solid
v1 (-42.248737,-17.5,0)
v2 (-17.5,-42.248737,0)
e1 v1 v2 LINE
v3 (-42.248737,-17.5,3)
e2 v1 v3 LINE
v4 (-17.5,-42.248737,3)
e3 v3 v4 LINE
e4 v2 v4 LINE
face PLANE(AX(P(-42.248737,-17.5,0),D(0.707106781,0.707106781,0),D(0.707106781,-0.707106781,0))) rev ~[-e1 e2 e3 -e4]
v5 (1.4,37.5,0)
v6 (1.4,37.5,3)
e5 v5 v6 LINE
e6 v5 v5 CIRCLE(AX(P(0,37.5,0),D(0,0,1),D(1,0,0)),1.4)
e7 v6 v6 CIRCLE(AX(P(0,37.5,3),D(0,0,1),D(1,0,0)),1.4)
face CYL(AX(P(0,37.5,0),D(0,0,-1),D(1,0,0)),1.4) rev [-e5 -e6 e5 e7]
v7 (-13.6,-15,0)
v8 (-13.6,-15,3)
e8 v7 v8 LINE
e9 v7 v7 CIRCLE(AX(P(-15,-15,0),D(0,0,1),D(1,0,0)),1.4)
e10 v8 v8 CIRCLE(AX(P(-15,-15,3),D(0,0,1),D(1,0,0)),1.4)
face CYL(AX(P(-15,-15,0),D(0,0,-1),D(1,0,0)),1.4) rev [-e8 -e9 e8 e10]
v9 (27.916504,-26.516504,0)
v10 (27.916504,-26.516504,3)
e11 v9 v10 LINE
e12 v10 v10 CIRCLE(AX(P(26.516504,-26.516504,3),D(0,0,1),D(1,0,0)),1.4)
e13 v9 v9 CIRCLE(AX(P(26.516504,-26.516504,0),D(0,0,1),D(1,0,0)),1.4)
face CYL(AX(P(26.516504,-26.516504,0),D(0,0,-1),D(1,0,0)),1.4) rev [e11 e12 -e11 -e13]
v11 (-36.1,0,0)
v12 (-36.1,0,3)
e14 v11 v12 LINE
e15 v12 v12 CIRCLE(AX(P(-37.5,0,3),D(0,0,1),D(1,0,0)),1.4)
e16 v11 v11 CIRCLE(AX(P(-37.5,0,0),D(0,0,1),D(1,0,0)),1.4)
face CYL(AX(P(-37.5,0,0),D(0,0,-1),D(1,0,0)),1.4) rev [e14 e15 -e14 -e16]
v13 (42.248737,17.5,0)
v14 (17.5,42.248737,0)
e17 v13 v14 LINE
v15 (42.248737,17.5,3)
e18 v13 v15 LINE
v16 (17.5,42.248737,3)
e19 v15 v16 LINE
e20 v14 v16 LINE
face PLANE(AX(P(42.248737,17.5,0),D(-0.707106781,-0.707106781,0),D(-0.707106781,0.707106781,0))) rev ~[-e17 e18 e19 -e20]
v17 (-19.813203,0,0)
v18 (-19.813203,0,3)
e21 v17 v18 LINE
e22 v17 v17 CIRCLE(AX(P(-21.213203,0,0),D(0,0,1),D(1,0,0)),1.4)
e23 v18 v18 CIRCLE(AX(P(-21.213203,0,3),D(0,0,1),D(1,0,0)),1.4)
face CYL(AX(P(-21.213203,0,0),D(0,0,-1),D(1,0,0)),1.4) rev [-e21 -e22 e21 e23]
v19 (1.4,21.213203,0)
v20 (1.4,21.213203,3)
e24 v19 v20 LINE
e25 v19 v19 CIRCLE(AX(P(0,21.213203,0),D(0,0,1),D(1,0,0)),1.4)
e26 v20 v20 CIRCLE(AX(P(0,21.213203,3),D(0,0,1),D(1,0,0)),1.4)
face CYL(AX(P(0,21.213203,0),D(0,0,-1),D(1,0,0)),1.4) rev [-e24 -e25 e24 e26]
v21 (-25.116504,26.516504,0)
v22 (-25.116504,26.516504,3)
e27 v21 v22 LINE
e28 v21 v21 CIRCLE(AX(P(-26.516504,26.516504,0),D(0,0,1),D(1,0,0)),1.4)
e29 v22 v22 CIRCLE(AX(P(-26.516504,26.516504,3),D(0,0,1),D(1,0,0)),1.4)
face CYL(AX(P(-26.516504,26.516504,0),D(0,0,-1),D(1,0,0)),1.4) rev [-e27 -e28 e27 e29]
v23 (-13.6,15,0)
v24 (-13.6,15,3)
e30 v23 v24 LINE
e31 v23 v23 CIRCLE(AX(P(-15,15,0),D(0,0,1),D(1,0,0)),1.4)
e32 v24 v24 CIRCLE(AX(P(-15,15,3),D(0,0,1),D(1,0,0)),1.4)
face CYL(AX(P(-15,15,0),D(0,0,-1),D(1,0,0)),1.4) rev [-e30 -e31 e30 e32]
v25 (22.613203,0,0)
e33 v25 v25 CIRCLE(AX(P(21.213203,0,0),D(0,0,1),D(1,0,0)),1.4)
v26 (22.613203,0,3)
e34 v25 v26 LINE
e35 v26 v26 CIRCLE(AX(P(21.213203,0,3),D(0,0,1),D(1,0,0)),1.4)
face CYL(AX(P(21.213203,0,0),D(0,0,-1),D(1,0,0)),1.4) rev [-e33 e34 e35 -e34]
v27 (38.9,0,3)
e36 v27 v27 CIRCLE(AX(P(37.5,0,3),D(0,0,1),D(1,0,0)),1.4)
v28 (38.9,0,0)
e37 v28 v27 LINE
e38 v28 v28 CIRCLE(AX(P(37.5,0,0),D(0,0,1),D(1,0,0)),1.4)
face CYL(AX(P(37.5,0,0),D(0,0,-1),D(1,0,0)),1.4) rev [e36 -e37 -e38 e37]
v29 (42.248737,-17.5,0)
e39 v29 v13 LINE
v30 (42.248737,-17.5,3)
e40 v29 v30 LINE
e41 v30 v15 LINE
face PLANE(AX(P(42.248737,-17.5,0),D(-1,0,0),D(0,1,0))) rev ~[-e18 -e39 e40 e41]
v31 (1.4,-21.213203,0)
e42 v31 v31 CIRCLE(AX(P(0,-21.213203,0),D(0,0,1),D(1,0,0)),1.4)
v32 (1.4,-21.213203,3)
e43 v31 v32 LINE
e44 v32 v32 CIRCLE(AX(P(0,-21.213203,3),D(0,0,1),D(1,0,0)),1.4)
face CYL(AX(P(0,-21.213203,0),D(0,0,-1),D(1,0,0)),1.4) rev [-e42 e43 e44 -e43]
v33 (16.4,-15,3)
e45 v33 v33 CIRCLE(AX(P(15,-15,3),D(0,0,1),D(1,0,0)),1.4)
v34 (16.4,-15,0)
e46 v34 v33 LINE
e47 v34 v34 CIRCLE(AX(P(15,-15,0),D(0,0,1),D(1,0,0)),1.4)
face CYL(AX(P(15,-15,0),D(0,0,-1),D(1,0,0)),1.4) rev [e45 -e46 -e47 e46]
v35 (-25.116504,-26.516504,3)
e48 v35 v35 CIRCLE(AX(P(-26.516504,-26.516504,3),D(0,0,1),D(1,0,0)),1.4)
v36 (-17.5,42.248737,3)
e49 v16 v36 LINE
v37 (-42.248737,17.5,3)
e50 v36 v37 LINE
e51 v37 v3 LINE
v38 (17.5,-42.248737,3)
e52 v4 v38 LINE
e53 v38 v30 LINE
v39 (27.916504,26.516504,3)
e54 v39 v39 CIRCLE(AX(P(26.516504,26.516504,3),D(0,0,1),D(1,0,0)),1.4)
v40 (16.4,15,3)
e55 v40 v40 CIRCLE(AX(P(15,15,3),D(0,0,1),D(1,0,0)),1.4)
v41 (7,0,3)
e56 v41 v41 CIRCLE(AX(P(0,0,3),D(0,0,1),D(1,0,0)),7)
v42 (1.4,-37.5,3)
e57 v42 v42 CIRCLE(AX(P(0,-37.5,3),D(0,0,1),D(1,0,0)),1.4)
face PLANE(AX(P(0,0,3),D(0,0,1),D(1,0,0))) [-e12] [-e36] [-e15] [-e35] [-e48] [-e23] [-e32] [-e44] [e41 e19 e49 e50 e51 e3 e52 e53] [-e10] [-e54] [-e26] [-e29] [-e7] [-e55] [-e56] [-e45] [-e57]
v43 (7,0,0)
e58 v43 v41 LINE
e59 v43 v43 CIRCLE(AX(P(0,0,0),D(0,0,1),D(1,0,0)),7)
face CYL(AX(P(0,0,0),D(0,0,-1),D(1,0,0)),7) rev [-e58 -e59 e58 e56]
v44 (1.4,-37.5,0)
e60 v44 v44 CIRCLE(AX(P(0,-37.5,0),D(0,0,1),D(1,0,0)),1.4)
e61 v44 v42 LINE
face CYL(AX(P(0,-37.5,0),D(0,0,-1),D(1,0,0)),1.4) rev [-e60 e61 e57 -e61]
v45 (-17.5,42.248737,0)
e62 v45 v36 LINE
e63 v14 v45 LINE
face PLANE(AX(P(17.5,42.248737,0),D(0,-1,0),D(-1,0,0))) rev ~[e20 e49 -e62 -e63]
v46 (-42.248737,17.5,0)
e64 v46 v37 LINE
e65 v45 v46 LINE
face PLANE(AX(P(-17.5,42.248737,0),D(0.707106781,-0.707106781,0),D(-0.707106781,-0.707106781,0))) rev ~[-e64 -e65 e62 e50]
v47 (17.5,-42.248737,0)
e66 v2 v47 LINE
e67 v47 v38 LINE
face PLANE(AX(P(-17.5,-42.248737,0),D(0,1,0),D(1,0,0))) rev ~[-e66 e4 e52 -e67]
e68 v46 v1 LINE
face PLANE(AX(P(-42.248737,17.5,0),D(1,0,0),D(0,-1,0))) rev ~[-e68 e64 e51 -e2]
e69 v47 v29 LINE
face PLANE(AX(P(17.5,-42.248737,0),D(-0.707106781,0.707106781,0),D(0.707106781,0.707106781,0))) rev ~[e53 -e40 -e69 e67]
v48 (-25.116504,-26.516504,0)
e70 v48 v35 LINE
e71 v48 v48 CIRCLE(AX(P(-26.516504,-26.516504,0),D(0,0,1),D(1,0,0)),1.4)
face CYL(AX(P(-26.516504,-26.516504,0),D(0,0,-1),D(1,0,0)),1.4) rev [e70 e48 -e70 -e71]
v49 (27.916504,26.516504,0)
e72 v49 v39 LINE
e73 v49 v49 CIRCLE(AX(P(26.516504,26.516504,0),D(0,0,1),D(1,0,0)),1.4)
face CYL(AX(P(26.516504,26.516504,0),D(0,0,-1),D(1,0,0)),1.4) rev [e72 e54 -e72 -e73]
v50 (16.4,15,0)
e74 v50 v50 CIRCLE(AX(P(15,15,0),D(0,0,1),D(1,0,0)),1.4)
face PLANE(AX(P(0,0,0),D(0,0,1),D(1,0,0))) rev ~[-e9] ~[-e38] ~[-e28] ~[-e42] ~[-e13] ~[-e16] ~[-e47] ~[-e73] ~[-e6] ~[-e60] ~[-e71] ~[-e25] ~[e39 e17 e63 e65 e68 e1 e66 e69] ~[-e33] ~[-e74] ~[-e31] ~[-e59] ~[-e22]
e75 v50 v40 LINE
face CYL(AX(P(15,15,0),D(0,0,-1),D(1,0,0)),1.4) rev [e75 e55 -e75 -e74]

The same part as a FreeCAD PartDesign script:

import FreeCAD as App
import Part
import Sketcher
Q = App.Units.Quantity

doc = App.newDocument("Part")
body = doc.addObject("PartDesign::Body", "Body")

# Sketch on XY plane
sketch1 = doc.addObject("Sketcher::SketchObject", "Sketch")
body.addObject(sketch1)
sketch1.AttachmentSupport = (doc.XY_Plane, [""])
sketch1.MapMode = "FlatFace"
sketch1.addGeometry(Part.LineSegment(App.Vector(17.5, 42.2, 0), App.Vector(-17.5, 42.2, 0)), False)
sketch1.addGeometry(Part.LineSegment(App.Vector(-17.5, 42.2, 0), App.Vector(-42.2, 17.5, 0)), False)
sketch1.addGeometry(Part.LineSegment(App.Vector(-42.2, 17.5, 0), App.Vector(-42.2, -17.5, 0)), False)
sketch1.addGeometry(Part.LineSegment(App.Vector(-42.2, -17.5, 0), App.Vector(-17.5, -42.2, 0)), False)
sketch1.addGeometry(Part.LineSegment(App.Vector(-17.5, -42.2, 0), App.Vector(17.5, -42.2, 0)), False)
sketch1.addGeometry(Part.LineSegment(App.Vector(17.5, -42.2, 0), App.Vector(42.2, -17.5, 0)), False)
sketch1.addGeometry(Part.LineSegment(App.Vector(42.2, -17.5, 0), App.Vector(42.2, 17.5, 0)), False)
sketch1.addGeometry(Part.LineSegment(App.Vector(42.2, 17.5, 0), App.Vector(17.5, 42.2, 0)), False)
sketch1.addGeometry(Part.Circle(App.Vector(-26.5, -26.5, 0), App.Vector(0, 0, 1), 1.4), False)
sketch1.addGeometry(Part.Circle(App.Vector(-15, -15, 0), App.Vector(0, 0, 1), 1.4), False)
sketch1.addGeometry(Part.Circle(App.Vector(0, -37.5, 0), App.Vector(0, 0, 1), 1.4), False)
sketch1.addGeometry(Part.Circle(App.Vector(0, -21.2, 0), App.Vector(0, 0, 1), 1.4), False)
sketch1.addGeometry(Part.Circle(App.Vector(26.5, -26.5, 0), App.Vector(0, 0, 1), 1.4), False)
sketch1.addGeometry(Part.Circle(App.Vector(15, -15, 0), App.Vector(0, 0, 1), 1.4), False)
sketch1.addGeometry(Part.Circle(App.Vector(-37.5, 0, 0), App.Vector(0, 0, 1), 1.4), False)
sketch1.addGeometry(Part.Circle(App.Vector(-21.2, 0, 0), App.Vector(0, 0, 1), 1.4), False)
sketch1.addGeometry(Part.Circle(App.Vector(-15, 15, 0), App.Vector(0, 0, 1), 1.4), False)
sketch1.addGeometry(Part.Circle(App.Vector(-26.5, 26.5, 0), App.Vector(0, 0, 1), 1.4), False)
sketch1.addGeometry(Part.Circle(App.Vector(0, 0, 0), App.Vector(0, 0, 1), 7), False)
sketch1.addGeometry(Part.Circle(App.Vector(15, 15, 0), App.Vector(0, 0, 1), 1.4), False)
sketch1.addGeometry(Part.Circle(App.Vector(21.2, 0, 0), App.Vector(0, 0, 1), 1.4), False)
sketch1.addGeometry(Part.Circle(App.Vector(37.5, 0, 0), App.Vector(0, 0, 1), 1.4), False)
sketch1.addGeometry(Part.Circle(App.Vector(0, 21.2, 0), App.Vector(0, 0, 1), 1.4), False)
sketch1.addGeometry(Part.Circle(App.Vector(0, 37.5, 0), App.Vector(0, 0, 1), 1.4), False)
sketch1.addGeometry(Part.Circle(App.Vector(26.5, 26.5, 0), App.Vector(0, 0, 1), 1.4), False)
sketch1.addConstraint(Sketcher.Constraint("Coincident", 0, 2, 1, 1))
sketch1.addConstraint(Sketcher.Constraint("Coincident", 1, 2, 2, 1))
sketch1.addConstraint(Sketcher.Constraint("Coincident", 2, 2, 3, 1))
sketch1.addConstraint(Sketcher.Constraint("Coincident", 3, 2, 4, 1))
sketch1.addConstraint(Sketcher.Constraint("Coincident", 4, 2, 5, 1))
sketch1.addConstraint(Sketcher.Constraint("Coincident", 5, 2, 6, 1))
sketch1.addConstraint(Sketcher.Constraint("Coincident", 6, 2, 7, 1))
sketch1.addConstraint(Sketcher.Constraint("Coincident", 7, 2, 0, 1))
sketch1.addConstraint(Sketcher.Constraint("Horizontal", 0))
sketch1.addConstraint(Sketcher.Constraint("Vertical", 2))
sketch1.addConstraint(Sketcher.Constraint("Horizontal", 4))
sketch1.addConstraint(Sketcher.Constraint("Vertical", 6))
sketch1.addConstraint(Sketcher.Constraint("Coincident", 18, 3, -1, 1))
sketch1.addConstraint(Sketcher.Constraint("Equal", 8, 9))
sketch1.addConstraint(Sketcher.Constraint("Equal", 9, 10))
sketch1.addConstraint(Sketcher.Constraint("Equal", 10, 11))
sketch1.addConstraint(Sketcher.Constraint("Equal", 11, 12))
sketch1.addConstraint(Sketcher.Constraint("Equal", 12, 13))
sketch1.addConstraint(Sketcher.Constraint("Equal", 13, 14))
sketch1.addConstraint(Sketcher.Constraint("Equal", 14, 15))
sketch1.addConstraint(Sketcher.Constraint("Equal", 15, 16))
sketch1.addConstraint(Sketcher.Constraint("Equal", 16, 17))
sketch1.addConstraint(Sketcher.Constraint("Equal", 17, 19))
sketch1.addConstraint(Sketcher.Constraint("Equal", 19, 20))
sketch1.addConstraint(Sketcher.Constraint("Equal", 20, 21))
sketch1.addConstraint(Sketcher.Constraint("Equal", 21, 22))
sketch1.addConstraint(Sketcher.Constraint("Equal", 22, 23))
sketch1.addConstraint(Sketcher.Constraint("Equal", 23, 24))
sketch1.addConstraint(Sketcher.Constraint("Symmetric", 13, 3, 16, 3, -1, 1))
sketch1.addConstraint(Sketcher.Constraint("Symmetric", 12, 3, 17, 3, -1, 1))
sketch1.addConstraint(Sketcher.Constraint("Symmetric", 9, 3, 19, 3, -1, 1))
sketch1.addConstraint(Sketcher.Constraint("Symmetric", 15, 3, 20, 3, -1, 1))
sketch1.addConstraint(Sketcher.Constraint("Symmetric", 14, 3, 21, 3, -1, 1))
sketch1.addConstraint(Sketcher.Constraint("Symmetric", 11, 3, 22, 3, -1, 1))
sketch1.addConstraint(Sketcher.Constraint("Symmetric", 10, 3, 23, 3, -1, 1))
sketch1.addConstraint(Sketcher.Constraint("Symmetric", 8, 3, 24, 3, -1, 1))
sketch1.addConstraint(Sketcher.Constraint("Symmetric", 0, 2, 4, 2, -1, 1))
sketch1.addConstraint(Sketcher.Constraint("Symmetric", 1, 2, 5, 2, -1, 1))
sketch1.addConstraint(Sketcher.Constraint("Symmetric", 8, 3, 12, 3, -2))
sketch1.addConstraint(Sketcher.Constraint("Symmetric", 9, 3, 13, 3, -2))
sketch1.addConstraint(Sketcher.Constraint("PointOnObject", 10, 3, -2))
sketch1.addConstraint(Sketcher.Constraint("PointOnObject", 11, 3, -2))
sketch1.addConstraint(Sketcher.Constraint("PointOnObject", 14, 3, -1))
sketch1.addConstraint(Sketcher.Constraint("PointOnObject", 15, 3, -1))
sketch1.addConstraint(Sketcher.Constraint("Perpendicular", 1, 3))
sketch1.addConstraint(Sketcher.Constraint("Perpendicular", 5, 7))
sketch1.addConstraint(Sketcher.Constraint("Horizontal", 2, 2, 5, 2))
sketch1.addConstraint(Sketcher.Constraint("Horizontal", 1, 2, 6, 2))
sketch1.addConstraint(Sketcher.Constraint("Vertical", 0, 2, 3, 2))
sketch1.addConstraint(Sketcher.Constraint("Equal", 4, 2))
sketch1.addConstraint(Sketcher.Constraint("Diameter", 18, Q("14 mm")))
sketch1.addConstraint(Sketcher.Constraint("Diameter", 8, Q("2.8 mm")))
sketch1.addConstraint(Sketcher.Constraint("DistanceX", 0, 2, 0, 1, Q("35 mm")))
sketch1.addConstraint(Sketcher.Constraint("Distance", 1, Q("35 mm")))
sketch1.addConstraint(Sketcher.Constraint("DistanceX", 9, 3, -1, 1, Q("15 mm")))
sketch1.addConstraint(Sketcher.Constraint("DistanceY", 9, 3, -1, 1, Q("15 mm")))
sketch1.addConstraint(Sketcher.Constraint("DistanceY", 10, 3, -1, 1, Q("37.5 mm")))
sketch1.addConstraint(Sketcher.Constraint("DistanceX", 14, 3, -1, 1, Q("37.5 mm")))
sketch1.addConstraint(Sketcher.Constraint("DistanceY", 8, 3, 11, 3, Q("5.303301 mm")))
sketch1.addConstraint(Sketcher.Constraint("DistanceX", 8, 3, 15, 3, Q("5.303301 mm")))
sketch1.addConstraint(Sketcher.Constraint("DistanceX", 8, 3, 12, 3, Q("53.033008 mm")))
sketch1.addConstraint(Sketcher.Constraint("DistanceY", 8, 3, 17, 3, Q("53.033008 mm")))
pad1 = doc.addObject("PartDesign::Pad", "Pad")
body.addObject(pad1)
pad1.Profile = sketch1
pad1.Length = 3

doc.recompute()
